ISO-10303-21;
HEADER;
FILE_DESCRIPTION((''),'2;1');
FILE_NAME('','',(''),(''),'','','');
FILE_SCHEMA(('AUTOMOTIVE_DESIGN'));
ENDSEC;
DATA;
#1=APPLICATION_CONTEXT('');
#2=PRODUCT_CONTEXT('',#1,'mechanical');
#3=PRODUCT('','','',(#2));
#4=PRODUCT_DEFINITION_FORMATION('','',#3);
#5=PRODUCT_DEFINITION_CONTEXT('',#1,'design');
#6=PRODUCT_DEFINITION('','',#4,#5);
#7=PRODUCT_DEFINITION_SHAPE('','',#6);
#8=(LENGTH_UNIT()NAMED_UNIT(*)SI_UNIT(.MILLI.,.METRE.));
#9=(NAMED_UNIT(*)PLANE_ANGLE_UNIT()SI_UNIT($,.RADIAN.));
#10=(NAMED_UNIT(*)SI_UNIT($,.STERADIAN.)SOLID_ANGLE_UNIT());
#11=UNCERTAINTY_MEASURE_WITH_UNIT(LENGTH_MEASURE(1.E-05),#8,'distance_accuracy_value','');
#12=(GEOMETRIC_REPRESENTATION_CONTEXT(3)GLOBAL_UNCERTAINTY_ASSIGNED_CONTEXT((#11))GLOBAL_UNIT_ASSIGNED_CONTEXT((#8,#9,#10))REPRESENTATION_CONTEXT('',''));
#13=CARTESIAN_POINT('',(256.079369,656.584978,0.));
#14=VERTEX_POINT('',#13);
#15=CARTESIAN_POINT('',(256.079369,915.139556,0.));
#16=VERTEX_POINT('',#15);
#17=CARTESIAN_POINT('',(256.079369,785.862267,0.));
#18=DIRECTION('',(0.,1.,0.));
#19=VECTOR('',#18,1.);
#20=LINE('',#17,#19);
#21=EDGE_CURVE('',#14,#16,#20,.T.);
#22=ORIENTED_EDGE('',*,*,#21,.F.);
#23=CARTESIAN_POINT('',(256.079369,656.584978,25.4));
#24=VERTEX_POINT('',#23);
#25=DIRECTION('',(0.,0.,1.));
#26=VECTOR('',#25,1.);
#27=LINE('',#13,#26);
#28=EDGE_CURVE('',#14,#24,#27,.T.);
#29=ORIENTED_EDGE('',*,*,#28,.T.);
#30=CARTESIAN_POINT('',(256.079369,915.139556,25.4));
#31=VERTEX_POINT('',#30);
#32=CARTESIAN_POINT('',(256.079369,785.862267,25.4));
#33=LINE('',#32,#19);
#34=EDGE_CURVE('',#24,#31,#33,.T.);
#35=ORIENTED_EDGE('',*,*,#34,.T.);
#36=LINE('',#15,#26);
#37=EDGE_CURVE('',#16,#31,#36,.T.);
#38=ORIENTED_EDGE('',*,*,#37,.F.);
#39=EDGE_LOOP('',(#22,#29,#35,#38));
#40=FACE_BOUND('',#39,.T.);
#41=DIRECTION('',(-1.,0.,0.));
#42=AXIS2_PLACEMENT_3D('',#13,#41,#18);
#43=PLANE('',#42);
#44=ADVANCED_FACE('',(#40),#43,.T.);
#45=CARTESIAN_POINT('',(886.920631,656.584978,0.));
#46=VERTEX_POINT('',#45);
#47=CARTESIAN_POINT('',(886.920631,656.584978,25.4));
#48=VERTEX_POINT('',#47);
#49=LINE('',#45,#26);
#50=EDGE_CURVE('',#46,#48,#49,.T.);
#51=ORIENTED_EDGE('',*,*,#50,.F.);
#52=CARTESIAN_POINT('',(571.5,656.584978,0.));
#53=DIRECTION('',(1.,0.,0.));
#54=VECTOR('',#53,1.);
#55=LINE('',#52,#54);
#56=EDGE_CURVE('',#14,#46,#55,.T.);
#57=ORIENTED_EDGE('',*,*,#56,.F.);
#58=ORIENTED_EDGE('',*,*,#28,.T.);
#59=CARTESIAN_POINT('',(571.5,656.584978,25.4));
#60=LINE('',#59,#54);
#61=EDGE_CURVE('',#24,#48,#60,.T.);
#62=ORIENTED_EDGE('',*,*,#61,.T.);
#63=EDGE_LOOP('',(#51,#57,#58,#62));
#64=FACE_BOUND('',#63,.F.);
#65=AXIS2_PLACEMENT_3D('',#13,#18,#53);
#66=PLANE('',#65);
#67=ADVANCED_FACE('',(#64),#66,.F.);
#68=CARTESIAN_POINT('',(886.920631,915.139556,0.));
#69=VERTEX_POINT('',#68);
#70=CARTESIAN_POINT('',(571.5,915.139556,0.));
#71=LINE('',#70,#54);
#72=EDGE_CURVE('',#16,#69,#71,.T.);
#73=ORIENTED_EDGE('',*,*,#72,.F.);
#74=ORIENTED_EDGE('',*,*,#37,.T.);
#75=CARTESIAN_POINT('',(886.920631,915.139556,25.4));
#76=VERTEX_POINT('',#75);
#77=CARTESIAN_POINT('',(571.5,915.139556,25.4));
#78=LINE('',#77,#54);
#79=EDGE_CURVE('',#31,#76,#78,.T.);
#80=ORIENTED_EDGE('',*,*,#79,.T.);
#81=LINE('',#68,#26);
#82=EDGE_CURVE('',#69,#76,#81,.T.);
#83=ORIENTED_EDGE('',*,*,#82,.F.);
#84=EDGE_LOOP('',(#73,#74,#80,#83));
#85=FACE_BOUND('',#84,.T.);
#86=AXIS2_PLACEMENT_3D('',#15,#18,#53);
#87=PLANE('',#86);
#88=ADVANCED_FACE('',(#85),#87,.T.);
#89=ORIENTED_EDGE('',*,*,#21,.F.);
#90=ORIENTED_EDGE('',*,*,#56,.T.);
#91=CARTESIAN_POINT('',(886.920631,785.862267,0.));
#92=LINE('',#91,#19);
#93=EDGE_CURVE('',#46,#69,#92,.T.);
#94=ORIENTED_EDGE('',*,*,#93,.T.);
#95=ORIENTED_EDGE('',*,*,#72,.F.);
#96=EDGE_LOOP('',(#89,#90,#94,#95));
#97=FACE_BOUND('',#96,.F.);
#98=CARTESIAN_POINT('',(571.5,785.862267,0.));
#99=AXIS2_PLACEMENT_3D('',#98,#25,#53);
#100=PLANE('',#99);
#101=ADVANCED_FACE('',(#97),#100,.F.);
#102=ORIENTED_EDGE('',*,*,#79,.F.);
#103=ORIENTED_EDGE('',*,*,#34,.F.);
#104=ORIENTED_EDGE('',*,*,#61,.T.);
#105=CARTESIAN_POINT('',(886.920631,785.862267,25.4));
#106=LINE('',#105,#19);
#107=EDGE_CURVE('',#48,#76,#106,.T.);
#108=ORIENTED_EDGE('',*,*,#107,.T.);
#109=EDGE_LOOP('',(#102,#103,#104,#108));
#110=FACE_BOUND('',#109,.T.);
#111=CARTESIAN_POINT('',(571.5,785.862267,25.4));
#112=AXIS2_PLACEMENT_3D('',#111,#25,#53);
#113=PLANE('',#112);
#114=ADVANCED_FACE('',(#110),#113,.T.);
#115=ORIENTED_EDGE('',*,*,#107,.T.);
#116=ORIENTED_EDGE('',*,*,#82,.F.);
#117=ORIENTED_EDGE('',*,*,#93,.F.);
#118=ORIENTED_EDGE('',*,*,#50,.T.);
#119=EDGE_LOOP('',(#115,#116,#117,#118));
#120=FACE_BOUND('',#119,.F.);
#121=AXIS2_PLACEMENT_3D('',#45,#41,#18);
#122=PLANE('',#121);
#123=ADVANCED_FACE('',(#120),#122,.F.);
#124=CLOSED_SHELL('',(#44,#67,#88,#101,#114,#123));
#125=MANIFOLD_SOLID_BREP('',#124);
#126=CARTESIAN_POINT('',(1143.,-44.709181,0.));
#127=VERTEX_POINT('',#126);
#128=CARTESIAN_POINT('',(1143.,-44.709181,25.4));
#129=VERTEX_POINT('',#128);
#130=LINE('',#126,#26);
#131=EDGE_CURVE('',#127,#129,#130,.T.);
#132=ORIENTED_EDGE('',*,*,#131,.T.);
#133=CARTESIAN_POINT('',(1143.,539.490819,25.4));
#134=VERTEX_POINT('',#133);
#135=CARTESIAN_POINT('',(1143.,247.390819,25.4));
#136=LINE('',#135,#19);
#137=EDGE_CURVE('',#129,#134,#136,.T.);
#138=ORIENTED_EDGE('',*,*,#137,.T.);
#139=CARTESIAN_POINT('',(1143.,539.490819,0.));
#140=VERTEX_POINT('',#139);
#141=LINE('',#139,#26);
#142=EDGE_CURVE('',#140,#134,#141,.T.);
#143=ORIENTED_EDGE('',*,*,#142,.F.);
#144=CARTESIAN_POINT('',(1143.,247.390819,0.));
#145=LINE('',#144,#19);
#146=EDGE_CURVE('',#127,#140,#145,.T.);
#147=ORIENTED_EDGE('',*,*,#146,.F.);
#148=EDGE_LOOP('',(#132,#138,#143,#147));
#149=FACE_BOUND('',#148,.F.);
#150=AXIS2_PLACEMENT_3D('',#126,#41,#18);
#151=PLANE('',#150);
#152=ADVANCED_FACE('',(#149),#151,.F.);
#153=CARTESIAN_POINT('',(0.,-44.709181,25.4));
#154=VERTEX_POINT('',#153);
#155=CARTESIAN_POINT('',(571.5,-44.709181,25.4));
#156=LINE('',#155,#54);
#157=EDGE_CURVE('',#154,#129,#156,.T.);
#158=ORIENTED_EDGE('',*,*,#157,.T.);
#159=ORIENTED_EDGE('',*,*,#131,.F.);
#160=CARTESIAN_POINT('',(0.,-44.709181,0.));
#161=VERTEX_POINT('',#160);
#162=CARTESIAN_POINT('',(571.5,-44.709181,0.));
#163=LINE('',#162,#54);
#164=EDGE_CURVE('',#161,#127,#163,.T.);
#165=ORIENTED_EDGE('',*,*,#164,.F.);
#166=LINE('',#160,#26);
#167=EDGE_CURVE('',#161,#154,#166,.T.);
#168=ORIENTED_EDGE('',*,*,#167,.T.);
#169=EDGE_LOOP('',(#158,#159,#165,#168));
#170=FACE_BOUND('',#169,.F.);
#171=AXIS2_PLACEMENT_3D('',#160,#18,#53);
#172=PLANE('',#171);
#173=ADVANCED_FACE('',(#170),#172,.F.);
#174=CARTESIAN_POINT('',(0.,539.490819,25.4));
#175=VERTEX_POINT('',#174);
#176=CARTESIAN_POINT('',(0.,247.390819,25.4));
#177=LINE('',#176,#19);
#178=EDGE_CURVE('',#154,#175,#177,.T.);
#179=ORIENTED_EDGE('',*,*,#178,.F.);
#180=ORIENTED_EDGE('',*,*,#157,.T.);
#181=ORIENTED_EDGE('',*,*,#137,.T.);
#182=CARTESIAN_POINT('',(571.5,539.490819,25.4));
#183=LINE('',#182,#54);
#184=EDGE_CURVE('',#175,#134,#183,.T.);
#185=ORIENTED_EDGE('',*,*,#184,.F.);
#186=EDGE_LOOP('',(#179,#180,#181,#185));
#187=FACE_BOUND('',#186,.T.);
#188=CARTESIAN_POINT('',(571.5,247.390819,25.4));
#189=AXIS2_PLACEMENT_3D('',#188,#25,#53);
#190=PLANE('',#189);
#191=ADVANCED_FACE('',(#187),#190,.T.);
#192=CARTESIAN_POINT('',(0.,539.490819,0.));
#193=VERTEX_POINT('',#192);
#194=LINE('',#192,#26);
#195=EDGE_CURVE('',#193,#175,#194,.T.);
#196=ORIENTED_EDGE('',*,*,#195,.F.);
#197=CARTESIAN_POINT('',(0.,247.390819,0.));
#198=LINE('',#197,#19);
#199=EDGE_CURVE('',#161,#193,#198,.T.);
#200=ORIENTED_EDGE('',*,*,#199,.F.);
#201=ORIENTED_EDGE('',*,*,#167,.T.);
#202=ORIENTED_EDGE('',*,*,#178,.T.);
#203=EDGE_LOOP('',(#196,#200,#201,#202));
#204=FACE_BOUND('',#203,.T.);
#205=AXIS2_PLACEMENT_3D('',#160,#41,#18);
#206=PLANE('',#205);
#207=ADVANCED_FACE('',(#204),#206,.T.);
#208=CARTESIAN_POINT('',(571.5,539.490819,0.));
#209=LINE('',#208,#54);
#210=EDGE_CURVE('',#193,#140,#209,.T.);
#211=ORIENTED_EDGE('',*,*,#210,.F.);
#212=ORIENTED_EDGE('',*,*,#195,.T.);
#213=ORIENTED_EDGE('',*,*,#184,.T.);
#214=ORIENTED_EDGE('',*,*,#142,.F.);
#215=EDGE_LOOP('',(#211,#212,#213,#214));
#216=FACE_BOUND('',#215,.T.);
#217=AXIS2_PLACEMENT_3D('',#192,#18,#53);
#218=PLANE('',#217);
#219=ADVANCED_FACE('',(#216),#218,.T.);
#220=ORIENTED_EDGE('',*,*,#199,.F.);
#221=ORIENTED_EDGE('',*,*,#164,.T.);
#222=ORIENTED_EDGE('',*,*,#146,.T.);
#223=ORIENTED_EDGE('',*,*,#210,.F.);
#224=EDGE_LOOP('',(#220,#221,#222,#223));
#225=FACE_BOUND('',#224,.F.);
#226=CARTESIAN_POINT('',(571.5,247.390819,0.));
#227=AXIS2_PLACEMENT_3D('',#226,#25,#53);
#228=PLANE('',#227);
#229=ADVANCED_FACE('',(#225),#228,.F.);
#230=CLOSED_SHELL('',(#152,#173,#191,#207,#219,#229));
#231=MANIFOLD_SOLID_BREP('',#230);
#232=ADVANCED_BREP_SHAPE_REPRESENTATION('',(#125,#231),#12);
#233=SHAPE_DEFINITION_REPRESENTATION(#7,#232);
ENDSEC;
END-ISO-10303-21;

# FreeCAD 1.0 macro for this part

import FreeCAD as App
import Part
import Sketcher

V = App.Vector
Q = App.Units.Quantity


def add_polygon(sketch, points):
    """Adds a closed chain of lines whose ends are joined by coincident constraints."""
    first, n = sketch.GeometryCount, len(points)
    for a, b in zip(points, points[1:] + points[:1]):
        sketch.addGeometry(Part.LineSegment(App.Vector(*a, 0), App.Vector(*b, 0)), False)
    for i in range(n):
        sketch.addConstraint(Sketcher.Constraint("Coincident", first + i, 2, first + (i + 1) % n, 1))

doc = App.newDocument("Part")
body = doc.addObject("PartDesign::Body", "Body")
body.AllowCompound = True

# Sketch on XY plane
sketch1 = doc.addObject("Sketcher::SketchObject", "Sketch")
body.addObject(sketch1)
sketch1.AttachmentSupport = (doc.XY_Plane, [""])
sketch1.MapMode = "FlatFace"
add_polygon(sketch1, [(0, 539.490819), (0, -44.709181), (1143, -44.709181), (1143, 539.490819)])  # lines 0-3
add_polygon(sketch1, [(256.079369, 915.139556), (256.079369, 656.584978), (886.920631, 656.584978), (886.920631, 915.139556)])  # lines 4-7
sketch1.addConstraint([
    Sketcher.Constraint("Vertical", 0),
    Sketcher.Constraint("Horizontal", 1),
    Sketcher.Constraint("Vertical", 2),
    Sketcher.Constraint("Horizontal", 3),
    Sketcher.Constraint("Vertical", 4),
    Sketcher.Constraint("Horizontal", 5),
    Sketcher.Constraint("Vertical", 6),
    Sketcher.Constraint("Horizontal", 7),
    Sketcher.Constraint("PointOnObject", 0, 2, -2),
    Sketcher.Constraint("DistanceX", 1, 1, 1, 2, Q("45 in")),
    Sketcher.Constraint("DistanceY", 0, 2, 0, 1, Q("23 in")),
    Sketcher.Constraint("DistanceX", 5, 1, 5, 2, 630.841262),
    Sketcher.Constraint("DistanceY", 4, 2, 4, 1, 258.554578),
    Sketcher.Constraint("DistanceY", 0, 2, -1, 1, 44.709181),
    Sketcher.Constraint("DistanceX", -1, 1, 4, 2, 256.079369),
    Sketcher.Constraint("DistanceY", -1, 1, 4, 2, 656.584978),
])
pad1 = doc.addObject("PartDesign::Pad", "Pad")
body.addObject(pad1)
pad1.Profile = sketch1
pad1.Length = Q("1 in")

doc.recompute()
